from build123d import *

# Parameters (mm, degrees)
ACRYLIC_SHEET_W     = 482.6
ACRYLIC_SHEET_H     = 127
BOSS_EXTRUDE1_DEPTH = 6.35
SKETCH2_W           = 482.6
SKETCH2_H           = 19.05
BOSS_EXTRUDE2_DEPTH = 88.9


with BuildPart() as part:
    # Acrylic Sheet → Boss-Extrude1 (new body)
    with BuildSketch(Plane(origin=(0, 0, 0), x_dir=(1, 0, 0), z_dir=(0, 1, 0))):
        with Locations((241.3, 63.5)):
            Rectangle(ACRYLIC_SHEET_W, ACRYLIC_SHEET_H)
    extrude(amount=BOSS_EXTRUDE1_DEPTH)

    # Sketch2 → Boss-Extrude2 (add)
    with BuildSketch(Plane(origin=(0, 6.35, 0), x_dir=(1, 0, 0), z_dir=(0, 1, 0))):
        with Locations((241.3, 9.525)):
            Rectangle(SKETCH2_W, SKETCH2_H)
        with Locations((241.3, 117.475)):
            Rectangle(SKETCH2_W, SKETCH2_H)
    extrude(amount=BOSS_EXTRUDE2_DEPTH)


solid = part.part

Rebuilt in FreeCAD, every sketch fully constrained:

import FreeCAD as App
import Part
import Sketcher
from FreeCAD import Vector
Q = App.Units.Quantity

doc = App.newDocument("Part")
body = doc.addObject("PartDesign::Body", "Body")

# Sketch on XZ plane
sketch1 = doc.addObject("Sketcher::SketchObject", "Sketch")
body.addObject(sketch1)
sketch1.AttachmentSupport = (doc.XZ_Plane, [""])
sketch1.MapMode = "FlatFace"
sketch1.addGeometry([
    Part.LineSegment(Vector(0, -127, 0), Vector(0, 0, 0)),
    Part.LineSegment(Vector(0, 0, 0), Vector(483, 0, 0)),
    Part.LineSegment(Vector(483, 0, 0), Vector(483, -127, 0)),
    Part.LineSegment(Vector(483, -127, 0), Vector(0, -127, 0)),
], False)
sketch1.addConstraint([
    Sketcher.Constraint("Coincident", 0, 2, 1, 1),
    Sketcher.Constraint("Coincident", 1, 2, 2, 1),
    Sketcher.Constraint("Coincident", 2, 2, 3, 1),
    Sketcher.Constraint("Coincident", 3, 2, 0, 1),
    Sketcher.Constraint("Vertical", 0),
    Sketcher.Constraint("Horizontal", 1),
    Sketcher.Constraint("Vertical", 2),
    Sketcher.Constraint("Horizontal", 3),
    Sketcher.Constraint("Coincident", 0, 2, -1, 1),
    Sketcher.Constraint("DistanceX", 1, 1, 1, 2, Q("19 in")),
    Sketcher.Constraint("DistanceY", 0, 1, 0, 2, Q("5 in")),
])
pad1 = doc.addObject("PartDesign::Pad", "Pad")
body.addObject(pad1)
pad1.Profile = sketch1
pad1.Length = Q("0.25 in")
pad1.Reversed = True

# Sketch on XZ plane
sketch2 = doc.addObject("Sketcher::SketchObject", "Sketch001")
body.addObject(sketch2)
sketch2.AttachmentSupport = (doc.XZ_Plane, [""])
sketch2.MapMode = "FlatFace"
sketch2.AttachmentOffset = App.Placement(Vector(0, 0, -0.25 * 25.4), App.Rotation())
sketch2.addGeometry([
    Part.LineSegment(Vector(0, -19, 0), Vector(0, 0, 0)),  # 0
    Part.LineSegment(Vector(0, 0, 0), Vector(483, 0, 0)),  # 1
    Part.LineSegment(Vector(483, 0, 0), Vector(483, -19, 0)),  # 2
    Part.LineSegment(Vector(483, -19, 0), Vector(0, -19, 0)),  # 3
    Part.LineSegment(Vector(0, -127, 0), Vector(0, -108, 0)),  # 4
    Part.LineSegment(Vector(0, -108, 0), Vector(483, -108, 0)),  # 5
    Part.LineSegment(Vector(483, -108, 0), Vector(483, -127, 0)),  # 6
    Part.LineSegment(Vector(483, -127, 0), Vector(0, -127, 0)),  # 7
], False)
sketch2.addConstraint([
    Sketcher.Constraint("Coincident", 0, 2, 1, 1),
    Sketcher.Constraint("Coincident", 1, 2, 2, 1),
    Sketcher.Constraint("Coincident", 2, 2, 3, 1),
    Sketcher.Constraint("Coincident", 3, 2, 0, 1),
    Sketcher.Constraint("Coincident", 4, 2, 5, 1),
    Sketcher.Constraint("Coincident", 5, 2, 6, 1),
    Sketcher.Constraint("Coincident", 6, 2, 7, 1),
    Sketcher.Constraint("Coincident", 7, 2, 4, 1),
    Sketcher.Constraint("Vertical", 0),
    Sketcher.Constraint("Horizontal", 1),
    Sketcher.Constraint("Vertical", 2),
    Sketcher.Constraint("Horizontal", 3),
    Sketcher.Constraint("Vertical", 4),
    Sketcher.Constraint("Horizontal", 5),
    Sketcher.Constraint("Vertical", 6),
    Sketcher.Constraint("Horizontal", 7),
    Sketcher.Constraint("Coincident", 0, 2, -1, 1),
    Sketcher.Constraint("PointOnObject", 4, 2, -2),
    Sketcher.Constraint("Vertical", 2, 2, 5, 2),
    Sketcher.Constraint("Equal", 2, 4),
    Sketcher.Constraint("DistanceX", 1, 1, 1, 2, Q("19 in")),
    Sketcher.Constraint("DistanceY", 6, 2, -1, 1, Q("5 in")),
    Sketcher.Constraint("DistanceY", 0, 1, 0, 2, Q("0.75 in")),
])
pad2 = doc.addObject("PartDesign::Pad", "Pad001")
body.addObject(pad2)
pad2.Profile = sketch2
pad2.Length = Q("3.5 in")
pad2.Reversed = True

doc.recompute()
